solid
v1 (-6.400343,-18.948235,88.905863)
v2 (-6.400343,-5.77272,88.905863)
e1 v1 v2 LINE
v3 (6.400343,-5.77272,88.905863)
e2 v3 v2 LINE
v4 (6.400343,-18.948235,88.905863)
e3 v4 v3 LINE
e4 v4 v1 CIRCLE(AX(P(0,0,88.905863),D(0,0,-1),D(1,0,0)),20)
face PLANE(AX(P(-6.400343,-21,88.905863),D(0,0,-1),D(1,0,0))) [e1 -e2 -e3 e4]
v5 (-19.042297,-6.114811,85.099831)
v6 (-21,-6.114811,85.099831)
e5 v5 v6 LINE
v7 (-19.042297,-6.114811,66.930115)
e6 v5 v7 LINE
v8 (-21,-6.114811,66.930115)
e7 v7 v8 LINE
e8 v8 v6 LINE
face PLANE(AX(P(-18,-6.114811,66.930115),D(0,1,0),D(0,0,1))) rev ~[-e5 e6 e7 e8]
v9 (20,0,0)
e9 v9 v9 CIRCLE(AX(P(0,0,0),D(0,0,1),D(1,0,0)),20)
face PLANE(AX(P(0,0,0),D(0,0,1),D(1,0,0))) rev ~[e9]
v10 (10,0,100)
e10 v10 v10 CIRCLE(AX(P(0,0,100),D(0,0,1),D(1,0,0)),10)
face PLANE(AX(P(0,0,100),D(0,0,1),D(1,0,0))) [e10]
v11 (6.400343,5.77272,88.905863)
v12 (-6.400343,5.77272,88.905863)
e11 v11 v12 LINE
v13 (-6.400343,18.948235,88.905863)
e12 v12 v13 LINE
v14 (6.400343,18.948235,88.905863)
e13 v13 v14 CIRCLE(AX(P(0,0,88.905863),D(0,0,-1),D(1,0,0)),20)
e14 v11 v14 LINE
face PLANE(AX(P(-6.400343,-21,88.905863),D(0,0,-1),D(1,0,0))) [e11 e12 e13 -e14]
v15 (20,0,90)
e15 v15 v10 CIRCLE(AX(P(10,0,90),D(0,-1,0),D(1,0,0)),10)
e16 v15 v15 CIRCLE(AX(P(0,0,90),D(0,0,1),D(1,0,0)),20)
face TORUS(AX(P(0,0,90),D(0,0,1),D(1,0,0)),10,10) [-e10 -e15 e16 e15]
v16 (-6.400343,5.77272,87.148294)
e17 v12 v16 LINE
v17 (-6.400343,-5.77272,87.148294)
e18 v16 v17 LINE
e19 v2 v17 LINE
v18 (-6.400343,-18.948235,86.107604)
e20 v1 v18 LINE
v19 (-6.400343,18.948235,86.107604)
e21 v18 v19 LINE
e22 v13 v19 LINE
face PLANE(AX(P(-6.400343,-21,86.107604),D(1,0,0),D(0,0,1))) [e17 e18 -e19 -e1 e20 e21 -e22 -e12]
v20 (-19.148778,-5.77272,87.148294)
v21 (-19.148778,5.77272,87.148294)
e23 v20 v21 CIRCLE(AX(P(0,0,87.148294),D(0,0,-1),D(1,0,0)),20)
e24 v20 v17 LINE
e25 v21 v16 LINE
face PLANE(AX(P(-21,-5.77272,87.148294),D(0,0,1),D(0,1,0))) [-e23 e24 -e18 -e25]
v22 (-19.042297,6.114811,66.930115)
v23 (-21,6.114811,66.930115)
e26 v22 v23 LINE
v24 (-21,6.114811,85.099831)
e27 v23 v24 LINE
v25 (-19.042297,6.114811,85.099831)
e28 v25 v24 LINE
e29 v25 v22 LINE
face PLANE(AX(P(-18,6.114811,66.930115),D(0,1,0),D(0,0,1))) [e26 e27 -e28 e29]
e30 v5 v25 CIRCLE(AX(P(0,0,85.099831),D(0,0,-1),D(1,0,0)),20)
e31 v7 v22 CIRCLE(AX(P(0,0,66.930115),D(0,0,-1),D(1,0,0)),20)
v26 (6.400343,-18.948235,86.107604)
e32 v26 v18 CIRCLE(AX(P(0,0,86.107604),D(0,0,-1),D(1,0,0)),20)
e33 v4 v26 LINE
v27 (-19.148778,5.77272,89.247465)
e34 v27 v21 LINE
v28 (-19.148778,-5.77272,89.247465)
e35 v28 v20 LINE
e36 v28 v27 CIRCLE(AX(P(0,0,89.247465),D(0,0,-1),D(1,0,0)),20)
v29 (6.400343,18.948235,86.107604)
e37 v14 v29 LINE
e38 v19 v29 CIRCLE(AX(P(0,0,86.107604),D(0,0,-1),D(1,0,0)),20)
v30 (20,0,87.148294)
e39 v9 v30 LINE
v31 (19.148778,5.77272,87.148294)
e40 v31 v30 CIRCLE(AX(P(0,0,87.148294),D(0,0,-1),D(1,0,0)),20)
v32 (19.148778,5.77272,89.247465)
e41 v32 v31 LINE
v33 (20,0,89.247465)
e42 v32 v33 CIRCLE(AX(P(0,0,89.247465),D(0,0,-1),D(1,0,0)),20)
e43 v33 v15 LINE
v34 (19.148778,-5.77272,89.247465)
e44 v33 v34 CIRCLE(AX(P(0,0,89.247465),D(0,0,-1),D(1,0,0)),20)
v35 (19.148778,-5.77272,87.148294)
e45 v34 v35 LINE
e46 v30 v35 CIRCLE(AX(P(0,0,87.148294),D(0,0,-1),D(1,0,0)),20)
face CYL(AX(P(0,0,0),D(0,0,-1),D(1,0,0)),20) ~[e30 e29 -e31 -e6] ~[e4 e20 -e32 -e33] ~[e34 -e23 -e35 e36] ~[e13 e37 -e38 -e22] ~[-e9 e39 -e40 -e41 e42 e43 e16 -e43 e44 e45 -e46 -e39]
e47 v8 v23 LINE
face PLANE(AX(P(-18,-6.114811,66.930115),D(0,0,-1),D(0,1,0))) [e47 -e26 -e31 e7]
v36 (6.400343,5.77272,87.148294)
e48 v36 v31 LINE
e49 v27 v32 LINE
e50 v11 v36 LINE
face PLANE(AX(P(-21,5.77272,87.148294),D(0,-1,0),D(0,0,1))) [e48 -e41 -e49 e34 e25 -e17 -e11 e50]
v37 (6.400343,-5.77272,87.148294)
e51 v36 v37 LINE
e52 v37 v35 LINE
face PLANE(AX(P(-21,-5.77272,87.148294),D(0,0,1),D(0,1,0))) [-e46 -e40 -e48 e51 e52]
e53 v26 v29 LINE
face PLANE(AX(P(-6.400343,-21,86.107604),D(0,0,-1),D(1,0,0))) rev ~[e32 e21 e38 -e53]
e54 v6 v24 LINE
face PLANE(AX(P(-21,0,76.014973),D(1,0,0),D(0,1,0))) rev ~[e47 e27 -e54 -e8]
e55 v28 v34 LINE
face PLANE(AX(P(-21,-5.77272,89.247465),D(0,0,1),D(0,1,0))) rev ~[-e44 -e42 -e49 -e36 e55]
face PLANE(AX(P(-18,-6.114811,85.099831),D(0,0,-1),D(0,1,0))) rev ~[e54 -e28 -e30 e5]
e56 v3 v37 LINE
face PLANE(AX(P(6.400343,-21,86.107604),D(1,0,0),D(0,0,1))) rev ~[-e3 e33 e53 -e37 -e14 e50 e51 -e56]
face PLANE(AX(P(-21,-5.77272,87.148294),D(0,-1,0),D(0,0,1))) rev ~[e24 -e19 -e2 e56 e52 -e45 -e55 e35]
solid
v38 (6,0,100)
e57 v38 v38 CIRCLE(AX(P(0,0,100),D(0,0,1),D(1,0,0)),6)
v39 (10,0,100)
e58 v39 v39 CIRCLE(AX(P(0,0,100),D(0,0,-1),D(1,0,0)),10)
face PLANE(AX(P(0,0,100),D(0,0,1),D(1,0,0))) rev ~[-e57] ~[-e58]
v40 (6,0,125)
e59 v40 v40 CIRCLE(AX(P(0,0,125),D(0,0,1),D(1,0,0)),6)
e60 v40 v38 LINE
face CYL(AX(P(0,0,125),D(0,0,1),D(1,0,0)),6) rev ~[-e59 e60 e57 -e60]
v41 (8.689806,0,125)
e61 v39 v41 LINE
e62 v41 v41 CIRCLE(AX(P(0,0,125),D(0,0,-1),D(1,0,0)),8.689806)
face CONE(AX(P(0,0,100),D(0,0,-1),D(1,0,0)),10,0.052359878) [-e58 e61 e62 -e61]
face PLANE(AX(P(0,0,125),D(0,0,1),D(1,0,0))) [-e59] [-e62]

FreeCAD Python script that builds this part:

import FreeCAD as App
import Part
import Sketcher

V = App.Vector


def edges_at(feature, points):
    """Names of the edges that pass closest to the given points."""
    edges = feature.Shape.Edges
    near = lambda p: min(range(len(edges)), key=lambda i: edges[i].distToShape(Part.Vertex(*p))[0])
    return sorted({f"Edge{near(p) + 1}" for p in points})


def add_polygon(sketch, points):
    """Adds a closed chain of lines whose ends are joined by coincident constraints."""
    first, n = sketch.GeometryCount, len(points)
    for a, b in zip(points, points[1:] + points[:1]):
        sketch.addGeometry(Part.LineSegment(App.Vector(*a, 0), App.Vector(*b, 0)), False)
    for i in range(n):
        sketch.addConstraint(Sketcher.Constraint("Coincident", first + i, 2, first + (i + 1) % n, 1))

doc = App.newDocument("Part")
body = doc.addObject("PartDesign::Body", "Body")

# Sketch on XY plane
sketch1 = doc.addObject("Sketcher::SketchObject", "Sketch")
body.addObject(sketch1)
sketch1.AttachmentSupport = (doc.XY_Plane, [""])
sketch1.MapMode = "FlatFace"
sketch1.addGeometry(Part.Circle(V(0, 0, 0), V(0, 0, 1), 20), False)
sketch1.addConstraint([
    Sketcher.Constraint("Coincident", 0, 3, -1, 1),
    Sketcher.Constraint("Diameter", 0, 40.0),
])
pad1 = doc.addObject("PartDesign::Pad", "Pad")
body.addObject(pad1)
pad1.Profile = sketch1
pad1.Length = 100
doc.recompute()

fillet = doc.addObject("PartDesign::Fillet", "Fillet")
body.addObject(fillet)
fillet.Base = (pad1, edges_at(pad1, [(-20, 0, 100)]))
fillet.Radius = 10

# Sketch on YZ plane
sketch2 = doc.addObject("Sketcher::SketchObject", "Sketch001")
body.addObject(sketch2)
sketch2.AttachmentSupport = (doc.YZ_Plane, [""])
sketch2.MapMode = "FlatFace"
sketch2.AttachmentOffset = App.Placement(V(0, 0, -18), App.Rotation())
add_polygon(sketch2, [(-6, 85), (-6, 67), (6, 67), (6, 85)])  # lines 0-3
sketch2.addConstraint([
    Sketcher.Constraint("Vertical", 0),
    Sketcher.Constraint("Horizontal", 1),
    Sketcher.Constraint("Vertical", 2),
    Sketcher.Constraint("Horizontal", 3),
    Sketcher.Constraint("DistanceX", 1, 1, 1, 2, 12.229622),
    Sketcher.Constraint("DistanceY", 0, 2, 0, 1, 18.169716),
    Sketcher.Constraint("DistanceX", 0, 2, -1, 1, 6.114811),
    Sketcher.Constraint("DistanceY", -1, 1, 2, 2, 85.099831),
])
pad2 = doc.addObject("PartDesign::Pad", "Pad001")
body.addObject(pad2)
pad2.Profile = sketch2
pad2.Length = 3
pad2.Reversed = True

# Sketch on XZ plane
sketch3 = doc.addObject("Sketcher::SketchObject", "Sketch002")
body.addObject(sketch3)
sketch3.AttachmentSupport = (doc.XZ_Plane, [""])
sketch3.MapMode = "FlatFace"
sketch3.AttachmentOffset = App.Placement(V(0, 0, 21), App.Rotation())
add_polygon(sketch3, [(-6.4, 88.9), (-6.4, 86.1), (6.4, 86.1), (6.4, 88.9)])  # lines 0-3
sketch3.addConstraint([
    Sketcher.Constraint("Vertical", 0),
    Sketcher.Constraint("Horizontal", 1),
    Sketcher.Constraint("Vertical", 2),
    Sketcher.Constraint("Horizontal", 3),
    Sketcher.Constraint("DistanceY", 0, 2, 0, 1, 2.798259),
    Sketcher.Constraint("DistanceX", 1, 1, 1, 2, 12.800686),
    Sketcher.Constraint("DistanceX", 0, 2, -1, 1, 6.400343),
    Sketcher.Constraint("DistanceY", -1, 1, 0, 2, 86.107604),
])
pocket1 = doc.addObject("PartDesign::Pocket", "Pocket")
body.addObject(pocket1)
pocket1.Profile = sketch3
pocket1.Length = 50

# Sketch on YZ plane
sketch4 = doc.addObject("Sketcher::SketchObject", "Sketch003")
body.addObject(sketch4)
sketch4.AttachmentSupport = (doc.YZ_Plane, [""])
sketch4.MapMode = "FlatFace"
sketch4.AttachmentOffset = App.Placement(V(0, 0, -21), App.Rotation())
add_polygon(sketch4, [(-5.8, 89.2), (-5.8, 87.1), (5.8, 87.1), (5.8, 89.2)])  # lines 0-3
sketch4.addConstraint([
    Sketcher.Constraint("Vertical", 0),
    Sketcher.Constraint("Horizontal", 1),
    Sketcher.Constraint("Vertical", 2),
    Sketcher.Constraint("Horizontal", 3),
    Sketcher.Constraint("DistanceX", 1, 1, 1, 2, 11.54544),
    Sketcher.Constraint("DistanceY", 0, 2, 0, 1, 2.099171),
    Sketcher.Constraint("DistanceX", 0, 2, -1, 1, 5.77272),
    Sketcher.Constraint("DistanceY", -1, 1, 0, 2, 87.148294),
])
pocket2 = doc.addObject("PartDesign::Pocket", "Pocket001")
body.addObject(pocket2)
pocket2.Profile = sketch4
pocket2.Length = 50
pocket2.Reversed = True
body2 = doc.addObject("PartDesign::Body", "Body001")

# Sketch on XY plane
sketch5 = doc.addObject("Sketcher::SketchObject", "Sketch004")
body2.addObject(sketch5)
sketch5.AttachmentSupport = (doc.getObject("XY_Plane001"), [""])
sketch5.MapMode = "FlatFace"
sketch5.AttachmentOffset = App.Placement(V(0, 0, 100), App.Rotation())
sketch5.addGeometry(Part.Circle(V(0, 0, 0), V(0, 0, 1), 10), False)
sketch5.addConstraint([
    Sketcher.Constraint("Coincident", 0, 3, -1, 1),
    Sketcher.Constraint("Diameter", 0, 20.0),
])
pad3 = doc.addObject("PartDesign::Pad", "Pad002")
body2.addObject(pad3)
pad3.Profile = sketch5
pad3.Length = 25
pad3.TaperAngle = -3

# Sketch on XY plane
sketch6 = doc.addObject("Sketcher::SketchObject", "Sketch005")
body2.addObject(sketch6)
sketch6.AttachmentSupport = (doc.getObject("XY_Plane001"), [""])
sketch6.MapMode = "FlatFace"
sketch6.AttachmentOffset = App.Placement(V(0, 0, 125), App.Rotation())
sketch6.addGeometry(Part.Circle(V(0, 0, 0), V(0, 0, 1), 6), False)
sketch6.addConstraint([
    Sketcher.Constraint("Coincident", 0, 3, -1, 1),
    Sketcher.Constraint("Diameter", 0, 12.0),
])
pocket3 = doc.addObject("PartDesign::Pocket", "Pocket002")
body2.addObject(pocket3)
pocket3.Profile = sketch6
pocket3.Length = 25

doc.recompute()
